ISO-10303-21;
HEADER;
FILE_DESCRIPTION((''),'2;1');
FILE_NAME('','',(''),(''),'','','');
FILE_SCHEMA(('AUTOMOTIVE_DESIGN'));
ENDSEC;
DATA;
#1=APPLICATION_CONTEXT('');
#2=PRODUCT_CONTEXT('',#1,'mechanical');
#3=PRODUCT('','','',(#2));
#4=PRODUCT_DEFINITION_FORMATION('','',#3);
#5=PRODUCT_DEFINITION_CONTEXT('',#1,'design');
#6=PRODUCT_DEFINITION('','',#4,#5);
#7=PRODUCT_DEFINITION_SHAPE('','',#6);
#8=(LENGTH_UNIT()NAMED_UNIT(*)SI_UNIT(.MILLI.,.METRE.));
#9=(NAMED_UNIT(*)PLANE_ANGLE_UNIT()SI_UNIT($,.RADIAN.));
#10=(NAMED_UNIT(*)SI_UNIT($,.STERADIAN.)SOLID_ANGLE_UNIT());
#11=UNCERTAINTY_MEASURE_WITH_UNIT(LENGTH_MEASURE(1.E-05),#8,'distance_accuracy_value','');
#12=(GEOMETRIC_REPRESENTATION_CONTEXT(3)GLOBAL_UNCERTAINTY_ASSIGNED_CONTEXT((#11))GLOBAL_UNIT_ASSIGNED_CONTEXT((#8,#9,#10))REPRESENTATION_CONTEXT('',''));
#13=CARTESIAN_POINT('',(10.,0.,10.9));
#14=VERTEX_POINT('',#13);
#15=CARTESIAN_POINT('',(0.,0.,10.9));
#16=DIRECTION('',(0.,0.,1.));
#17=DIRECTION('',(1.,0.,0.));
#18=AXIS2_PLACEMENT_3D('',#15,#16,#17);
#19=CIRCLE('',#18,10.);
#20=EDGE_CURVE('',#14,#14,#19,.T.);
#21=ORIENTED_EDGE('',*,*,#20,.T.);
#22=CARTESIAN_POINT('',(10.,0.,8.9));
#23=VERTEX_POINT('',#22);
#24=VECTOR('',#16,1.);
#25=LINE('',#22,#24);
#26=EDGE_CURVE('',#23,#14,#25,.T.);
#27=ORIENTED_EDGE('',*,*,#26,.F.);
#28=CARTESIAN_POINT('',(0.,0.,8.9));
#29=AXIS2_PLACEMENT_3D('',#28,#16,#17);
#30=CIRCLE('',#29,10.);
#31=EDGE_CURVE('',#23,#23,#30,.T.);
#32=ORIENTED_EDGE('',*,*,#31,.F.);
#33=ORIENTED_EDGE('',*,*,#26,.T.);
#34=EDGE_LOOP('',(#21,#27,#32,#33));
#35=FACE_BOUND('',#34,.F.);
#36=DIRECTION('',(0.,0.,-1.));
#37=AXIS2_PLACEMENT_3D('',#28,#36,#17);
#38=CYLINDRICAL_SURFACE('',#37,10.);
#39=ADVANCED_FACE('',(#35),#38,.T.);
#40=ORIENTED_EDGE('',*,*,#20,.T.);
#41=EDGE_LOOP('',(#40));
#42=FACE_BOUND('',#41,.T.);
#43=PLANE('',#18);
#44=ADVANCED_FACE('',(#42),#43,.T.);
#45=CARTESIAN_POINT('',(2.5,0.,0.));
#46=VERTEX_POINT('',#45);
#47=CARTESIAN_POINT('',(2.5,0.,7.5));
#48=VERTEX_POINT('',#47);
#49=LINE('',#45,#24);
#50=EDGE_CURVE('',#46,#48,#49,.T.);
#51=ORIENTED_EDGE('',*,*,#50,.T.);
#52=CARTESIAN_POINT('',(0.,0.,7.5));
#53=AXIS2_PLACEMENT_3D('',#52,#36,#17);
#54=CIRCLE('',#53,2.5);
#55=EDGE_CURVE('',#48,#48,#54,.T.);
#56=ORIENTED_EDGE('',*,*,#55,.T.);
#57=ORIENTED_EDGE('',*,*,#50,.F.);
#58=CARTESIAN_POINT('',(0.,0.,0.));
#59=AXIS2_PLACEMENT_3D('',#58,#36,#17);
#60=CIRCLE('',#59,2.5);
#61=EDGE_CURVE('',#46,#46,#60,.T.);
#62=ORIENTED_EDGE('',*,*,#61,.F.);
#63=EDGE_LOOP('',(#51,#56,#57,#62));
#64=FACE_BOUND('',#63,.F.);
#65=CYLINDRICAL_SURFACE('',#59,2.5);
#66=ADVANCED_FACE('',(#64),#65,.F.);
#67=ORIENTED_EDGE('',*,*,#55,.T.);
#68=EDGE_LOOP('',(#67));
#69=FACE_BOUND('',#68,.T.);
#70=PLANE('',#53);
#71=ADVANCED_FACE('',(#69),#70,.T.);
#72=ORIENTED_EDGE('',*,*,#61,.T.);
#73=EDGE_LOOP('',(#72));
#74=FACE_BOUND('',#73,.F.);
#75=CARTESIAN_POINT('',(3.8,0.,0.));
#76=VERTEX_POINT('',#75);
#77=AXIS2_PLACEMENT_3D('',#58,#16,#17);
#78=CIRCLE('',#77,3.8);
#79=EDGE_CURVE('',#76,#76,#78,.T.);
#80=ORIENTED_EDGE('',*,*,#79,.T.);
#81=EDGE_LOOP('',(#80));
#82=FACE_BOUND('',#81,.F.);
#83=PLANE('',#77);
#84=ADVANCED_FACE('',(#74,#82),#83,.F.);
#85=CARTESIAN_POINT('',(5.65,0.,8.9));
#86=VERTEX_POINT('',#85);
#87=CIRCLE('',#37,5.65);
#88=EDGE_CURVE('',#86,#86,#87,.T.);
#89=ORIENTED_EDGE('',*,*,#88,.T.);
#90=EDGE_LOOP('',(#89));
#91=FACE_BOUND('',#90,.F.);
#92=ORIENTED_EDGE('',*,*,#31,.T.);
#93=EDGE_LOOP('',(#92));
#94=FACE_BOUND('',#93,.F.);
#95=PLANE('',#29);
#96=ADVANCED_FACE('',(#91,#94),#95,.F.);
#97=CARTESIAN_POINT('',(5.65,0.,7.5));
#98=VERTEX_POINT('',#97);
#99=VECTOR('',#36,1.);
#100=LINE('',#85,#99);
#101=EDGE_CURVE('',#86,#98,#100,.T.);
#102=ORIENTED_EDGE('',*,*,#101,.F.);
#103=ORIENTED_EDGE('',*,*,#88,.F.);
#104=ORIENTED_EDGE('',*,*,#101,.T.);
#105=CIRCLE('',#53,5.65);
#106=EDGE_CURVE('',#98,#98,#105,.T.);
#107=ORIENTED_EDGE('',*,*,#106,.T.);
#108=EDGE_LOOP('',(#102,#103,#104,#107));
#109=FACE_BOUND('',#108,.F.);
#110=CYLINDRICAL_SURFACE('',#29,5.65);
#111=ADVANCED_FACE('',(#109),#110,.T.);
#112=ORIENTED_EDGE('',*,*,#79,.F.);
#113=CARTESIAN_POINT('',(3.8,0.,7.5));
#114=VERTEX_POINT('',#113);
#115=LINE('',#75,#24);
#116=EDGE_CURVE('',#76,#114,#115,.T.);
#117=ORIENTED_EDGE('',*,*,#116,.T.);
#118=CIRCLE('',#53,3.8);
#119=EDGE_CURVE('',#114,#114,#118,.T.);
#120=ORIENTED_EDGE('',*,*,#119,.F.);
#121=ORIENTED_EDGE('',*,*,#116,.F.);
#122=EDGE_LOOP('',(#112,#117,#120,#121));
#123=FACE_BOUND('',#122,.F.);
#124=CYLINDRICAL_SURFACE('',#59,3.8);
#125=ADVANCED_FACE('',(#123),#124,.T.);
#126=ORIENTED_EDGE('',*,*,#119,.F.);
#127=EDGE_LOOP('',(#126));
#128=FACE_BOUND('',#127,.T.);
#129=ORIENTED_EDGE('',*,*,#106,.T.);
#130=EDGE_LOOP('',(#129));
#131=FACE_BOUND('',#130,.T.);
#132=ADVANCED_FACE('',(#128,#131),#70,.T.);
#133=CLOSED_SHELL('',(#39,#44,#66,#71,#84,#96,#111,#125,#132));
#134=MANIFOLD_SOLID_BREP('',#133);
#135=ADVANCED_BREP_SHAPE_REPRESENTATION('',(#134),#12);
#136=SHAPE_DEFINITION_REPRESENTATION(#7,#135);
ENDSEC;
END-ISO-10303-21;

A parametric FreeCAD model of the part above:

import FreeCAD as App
import Part
import Sketcher
from FreeCAD import Vector
Q = App.Units.Quantity

doc = App.newDocument("Part")
body = doc.addObject("PartDesign::Body", "Body")

# Sketch on XY plane
sketch1 = body.newObject("Sketcher::SketchObject", "Sketch")
sketch1.AttachmentSupport = (doc.getObject("XY_Plane"), [""])
sketch1.MapMode = "FlatFace"
sketch1.addGeometry(Part.Circle(Vector(0, 0, 0), Vector(0, 0, 1), 3.8), False)
sketch1.addConstraint([
    Sketcher.Constraint("Coincident", 0, 3, -1, 1),
    Sketcher.Constraint("Diameter", 0, Q("7.6 mm")),
])
pad1 = body.newObject("PartDesign::Pad", "Pad")
pad1.Profile = sketch1
pad1.Length = 8.9

# Sketch on XY plane
sketch2 = body.newObject("Sketcher::SketchObject", "Sketch001")
sketch2.AttachmentSupport = (doc.getObject("XY_Plane"), [""])
sketch2.MapMode = "FlatFace"
sketch2.AttachmentOffset = App.Placement(Vector(0, 0, 8.9), App.Rotation())
sketch2.addGeometry(Part.Circle(Vector(0, 0, 0), Vector(0, 0, 1), 10), False)
sketch2.addConstraint([
    Sketcher.Constraint("Coincident", 0, 3, -1, 1),
    Sketcher.Constraint("Diameter", 0, Q("20 mm")),
])
pad2 = body.newObject("PartDesign::Pad", "Pad001")
pad2.Profile = sketch2
pad2.Length = 2

# Sketch on XY plane
sketch3 = body.newObject("Sketcher::SketchObject", "Sketch002")
sketch3.AttachmentSupport = (doc.getObject("XY_Plane"), [""])
sketch3.MapMode = "FlatFace"
sketch3.addGeometry(Part.Circle(Vector(0, 0, 0), Vector(0, 0, 1), 2.5), False)
sketch3.addConstraint([
    Sketcher.Constraint("Coincident", 0, 3, -1, 1),
    Sketcher.Constraint("Diameter", 0, Q("5 mm")),
])
pocket1 = body.newObject("PartDesign::Pocket", "Pocket")
pocket1.Profile = sketch3
pocket1.Length = 8.3
pocket1.Reversed = True

# Sketch on XY plane
sketch4 = body.newObject("Sketcher::SketchObject", "Sketch003")
sketch4.AttachmentSupport = (doc.getObject("XY_Plane"), [""])
sketch4.MapMode = "FlatFace"
sketch4.AttachmentOffset = App.Placement(Vector(0, 0, 8.9), App.Rotation())
sketch4.addGeometry(Part.Circle(Vector(0, 0, 0), Vector(0, 0, 1), 6), False)
sketch4.addConstraint([
    Sketcher.Constraint("Coincident", 0, 3, -1, 1),
    Sketcher.Constraint("Diameter", 0, Q("11.3 mm")),
])
pad3 = body.newObject("PartDesign::Pad", "Pad002")
pad3.Profile = sketch4
pad3.Length = 1.4
pad3.Reversed = True

doc.recompute()
